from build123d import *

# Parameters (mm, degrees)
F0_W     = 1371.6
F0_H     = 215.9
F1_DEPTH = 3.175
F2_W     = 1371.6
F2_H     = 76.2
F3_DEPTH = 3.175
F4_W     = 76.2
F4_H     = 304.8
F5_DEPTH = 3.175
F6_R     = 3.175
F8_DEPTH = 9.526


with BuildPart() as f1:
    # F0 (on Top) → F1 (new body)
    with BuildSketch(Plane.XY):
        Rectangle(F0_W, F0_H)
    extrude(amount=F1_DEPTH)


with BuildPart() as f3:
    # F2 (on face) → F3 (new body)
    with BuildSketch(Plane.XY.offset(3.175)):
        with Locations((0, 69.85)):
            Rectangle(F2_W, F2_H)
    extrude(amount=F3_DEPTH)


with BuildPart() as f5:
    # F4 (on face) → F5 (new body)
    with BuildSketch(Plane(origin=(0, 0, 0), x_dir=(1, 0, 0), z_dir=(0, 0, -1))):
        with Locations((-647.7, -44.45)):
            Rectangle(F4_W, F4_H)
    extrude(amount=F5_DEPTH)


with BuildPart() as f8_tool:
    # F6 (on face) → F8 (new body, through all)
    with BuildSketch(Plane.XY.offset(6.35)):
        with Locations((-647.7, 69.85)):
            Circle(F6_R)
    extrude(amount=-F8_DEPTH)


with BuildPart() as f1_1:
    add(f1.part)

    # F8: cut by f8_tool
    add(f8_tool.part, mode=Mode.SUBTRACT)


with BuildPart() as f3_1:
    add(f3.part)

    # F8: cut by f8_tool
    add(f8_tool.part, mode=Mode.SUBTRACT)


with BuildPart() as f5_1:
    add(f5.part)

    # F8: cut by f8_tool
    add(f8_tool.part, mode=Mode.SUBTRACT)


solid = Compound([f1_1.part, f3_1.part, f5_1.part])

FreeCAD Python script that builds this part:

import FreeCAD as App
import Part
import Sketcher
from FreeCAD import Vector
Q = App.Units.Quantity

doc = App.newDocument("Part")
body = doc.addObject("PartDesign::Body", "Body")

# Sketch on XY plane
sketch1 = doc.addObject("Sketcher::SketchObject", "Sketch")
body.addObject(sketch1)
sketch1.AttachmentSupport = (doc.XY_Plane, [""])
sketch1.MapMode = "FlatFace"
sketch1.addGeometry([
    Part.LineSegment(Vector(-686, 108, 0), Vector(-686, -108, 0)),
    Part.LineSegment(Vector(-686, -108, 0), Vector(686, -108, 0)),
    Part.LineSegment(Vector(686, -108, 0), Vector(686, 108, 0)),
    Part.LineSegment(Vector(686, 108, 0), Vector(-686, 108, 0)),
], False)
sketch1.addConstraint([
    Sketcher.Constraint("Coincident", 0, 2, 1, 1),
    Sketcher.Constraint("Coincident", 1, 2, 2, 1),
    Sketcher.Constraint("Coincident", 2, 2, 3, 1),
    Sketcher.Constraint("Coincident", 3, 2, 0, 1),
    Sketcher.Constraint("Vertical", 0),
    Sketcher.Constraint("Horizontal", 1),
    Sketcher.Constraint("Vertical", 2),
    Sketcher.Constraint("Horizontal", 3),
    Sketcher.Constraint("Symmetric", 0, 2, 2, 2, -1, 1),
    Sketcher.Constraint("DistanceX", 1, 1, 1, 2, Q("54 in")),
    Sketcher.Constraint("DistanceY", 0, 2, 0, 1, Q("8.5 in")),
])
pad1 = doc.addObject("PartDesign::Pad", "Pad")
body.addObject(pad1)
pad1.Profile = sketch1
pad1.Length = Q("0.125 in")
body2 = doc.addObject("PartDesign::Body", "Body001")

# Sketch on XY plane
sketch2 = doc.addObject("Sketcher::SketchObject", "Sketch001")
body2.addObject(sketch2)
sketch2.AttachmentSupport = (doc.getObject("XY_Plane001"), [""])
sketch2.MapMode = "FlatFace"
sketch2.AttachmentOffset = App.Placement(Vector(0, 0, 0.125 * 25.4), App.Rotation())
sketch2.addGeometry([
    Part.LineSegment(Vector(-686, 108, 0), Vector(-686, 32, 0)),
    Part.LineSegment(Vector(-686, 32, 0), Vector(686, 32, 0)),
    Part.LineSegment(Vector(686, 32, 0), Vector(686, 108, 0)),
    Part.LineSegment(Vector(686, 108, 0), Vector(-686, 108, 0)),
], False)
sketch2.addConstraint([
    Sketcher.Constraint("Coincident", 0, 2, 1, 1),
    Sketcher.Constraint("Coincident", 1, 2, 2, 1),
    Sketcher.Constraint("Coincident", 2, 2, 3, 1),
    Sketcher.Constraint("Coincident", 3, 2, 0, 1),
    Sketcher.Constraint("Vertical", 0),
    Sketcher.Constraint("Horizontal", 1),
    Sketcher.Constraint("Vertical", 2),
    Sketcher.Constraint("Horizontal", 3),
    Sketcher.Constraint("DistanceX", 1, 1, 1, 2, Q("54 in")),
    Sketcher.Constraint("DistanceY", 0, 2, 0, 1, Q("3 in")),
    Sketcher.Constraint("DistanceX", 0, 2, -1, 1, Q("27 in")),
    Sketcher.Constraint("DistanceY", -1, 1, 0, 2, Q("1.25 in")),
])
pad2 = doc.addObject("PartDesign::Pad", "Pad001")
body2.addObject(pad2)
pad2.Profile = sketch2
pad2.Length = Q("0.125 in")
body3 = doc.addObject("PartDesign::Body", "Body002")

# Sketch on XY plane
sketch3 = doc.addObject("Sketcher::SketchObject", "Sketch002")
body3.addObject(sketch3)
sketch3.AttachmentSupport = (doc.getObject("XY_Plane002"), [""])
sketch3.MapMode = "FlatFace"
sketch3.addGeometry([
    Part.LineSegment(Vector(-686, -108, 0), Vector(-686, 197, 0)),
    Part.LineSegment(Vector(-686, 197, 0), Vector(-610, 197, 0)),
    Part.LineSegment(Vector(-610, 197, 0), Vector(-610, -108, 0)),
    Part.LineSegment(Vector(-610, -108, 0), Vector(-686, -108, 0)),
], False)
sketch3.addConstraint([
    Sketcher.Constraint("Coincident", 0, 2, 1, 1),
    Sketcher.Constraint("Coincident", 1, 2, 2, 1),
    Sketcher.Constraint("Coincident", 2, 2, 3, 1),
    Sketcher.Constraint("Coincident", 3, 2, 0, 1),
    Sketcher.Constraint("Vertical", 0),
    Sketcher.Constraint("Horizontal", 1),
    Sketcher.Constraint("Vertical", 2),
    Sketcher.Constraint("Horizontal", 3),
    Sketcher.Constraint("DistanceX", 1, 1, 1, 2, Q("3 in")),
    Sketcher.Constraint("DistanceY", 0, 1, 0, 2, Q("12 in")),
    Sketcher.Constraint("DistanceX", 0, 2, -1, 1, Q("27 in")),
    Sketcher.Constraint("DistanceY", -1, 1, 0, 2, Q("7.75 in")),
])
pad3 = doc.addObject("PartDesign::Pad", "Pad002")
body3.addObject(pad3)
pad3.Profile = sketch3
pad3.Length = Q("0.125 in")
pad3.Reversed = True
body4 = doc.addObject("PartDesign::Body", "Body003")

# Sketch on XY plane
sketch4 = doc.addObject("Sketcher::SketchObject", "Sketch003")
body4.addObject(sketch4)
sketch4.AttachmentSupport = (doc.getObject("XY_Plane003"), [""])
sketch4.MapMode = "FlatFace"
sketch4.AttachmentOffset = App.Placement(Vector(0, 0, 0.25 * 25.4), App.Rotation())
sketch4.addGeometry(Part.Circle(Vector(-647.7, 69.8, 0), Vector(0, 0, 1), 3.2), False)
sketch4.addConstraint([
    Sketcher.Constraint("Diameter", 0, Q("0.25 in")),
    Sketcher.Constraint("DistanceX", 0, 3, -1, 1, Q("25.5 in")),
    Sketcher.Constraint("DistanceY", -1, 1, 0, 3, Q("2.75 in")),
])
pad4 = doc.addObject("PartDesign::Pad", "Pad003")
body4.addObject(pad4)
pad4.Profile = sketch4
pad4.Length = 9.526
pad4.Reversed = True
doc.recompute()

body5 = doc.addObject("PartDesign::Body", "Body004")
body5.BaseFeature = body4
boolean = doc.addObject("PartDesign::Boolean", "Boolean")
body.addObject(boolean)
boolean.Type = "Cut"
boolean.addObjects([body5])
doc.recompute()

body6 = doc.addObject("PartDesign::Body", "Body005")
body6.BaseFeature = body4
boolean2 = doc.addObject("PartDesign::Boolean", "Boolean001")
body2.addObject(boolean2)
boolean2.Type = "Cut"
boolean2.addObjects([body6])
doc.recompute()

boolean3 = doc.addObject("PartDesign::Boolean", "Boolean002")
body3.addObject(boolean3)
boolean3.Type = "Cut"
boolean3.addObjects([body4])

doc.recompute()
